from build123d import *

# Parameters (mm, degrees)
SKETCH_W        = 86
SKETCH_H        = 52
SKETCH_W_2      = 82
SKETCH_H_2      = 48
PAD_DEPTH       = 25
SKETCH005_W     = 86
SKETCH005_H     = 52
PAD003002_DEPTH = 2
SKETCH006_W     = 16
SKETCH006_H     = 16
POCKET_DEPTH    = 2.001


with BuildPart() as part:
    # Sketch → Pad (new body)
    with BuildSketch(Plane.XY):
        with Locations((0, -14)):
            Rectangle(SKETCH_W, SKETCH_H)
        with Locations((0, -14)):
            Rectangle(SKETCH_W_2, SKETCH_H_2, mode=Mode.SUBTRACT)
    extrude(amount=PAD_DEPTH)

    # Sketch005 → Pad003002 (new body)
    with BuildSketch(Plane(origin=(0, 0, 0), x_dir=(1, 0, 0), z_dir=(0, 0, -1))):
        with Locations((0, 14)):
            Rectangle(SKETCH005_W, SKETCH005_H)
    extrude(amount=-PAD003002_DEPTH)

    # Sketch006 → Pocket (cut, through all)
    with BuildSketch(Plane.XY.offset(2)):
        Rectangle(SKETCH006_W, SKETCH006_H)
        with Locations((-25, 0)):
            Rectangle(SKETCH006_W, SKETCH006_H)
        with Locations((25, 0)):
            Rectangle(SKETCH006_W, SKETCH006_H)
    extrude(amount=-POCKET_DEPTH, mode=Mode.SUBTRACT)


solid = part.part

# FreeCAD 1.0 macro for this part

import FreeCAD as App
import Part
import Sketcher
from FreeCAD import Vector
Q = App.Units.Quantity


def add_polygon(sketch, points):
    """Adds a closed chain of lines whose ends are joined by coincident constraints."""
    first, n = sketch.GeometryCount, len(points)
    for a, b in zip(points, points[1:] + points[:1]):
        sketch.addGeometry(Part.LineSegment(App.Vector(*a, 0), App.Vector(*b, 0)), False)
    for i in range(n):
        sketch.addConstraint(Sketcher.Constraint("Coincident", first + i, 2, first + (i + 1) % n, 1))

doc = App.newDocument("Part")
body = doc.addObject("PartDesign::Body", "Body")

# Sketch on XY plane
sketch1 = body.newObject("Sketcher::SketchObject", "Sketch")
sketch1.AttachmentSupport = (doc.getObject("XY_Plane"), [""])
sketch1.MapMode = "FlatFace"
add_polygon(sketch1, [(-43, 12), (-43, -40), (43, -40), (43, 12)])  # lines 0-3
add_polygon(sketch1, [(41, -38), (-41, -38), (-41, 10), (41, 10)])  # lines 4-7
sketch1.addConstraint(Sketcher.Constraint("Vertical", 0))
sketch1.addConstraint(Sketcher.Constraint("Horizontal", 1))
sketch1.addConstraint(Sketcher.Constraint("Vertical", 2))
sketch1.addConstraint(Sketcher.Constraint("Horizontal", 3))
sketch1.addConstraint(Sketcher.Constraint("Horizontal", 4))
sketch1.addConstraint(Sketcher.Constraint("Vertical", 5))
sketch1.addConstraint(Sketcher.Constraint("Horizontal", 6))
sketch1.addConstraint(Sketcher.Constraint("Vertical", 7))
sketch1.addConstraint(Sketcher.Constraint("DistanceX", 1, 1, 1, 2, Q("86 mm")))
sketch1.addConstraint(Sketcher.Constraint("DistanceX", 4, 2, 4, 1, Q("82 mm")))
sketch1.addConstraint(Sketcher.Constraint("DistanceY", 0, 2, 0, 1, Q("52 mm")))
sketch1.addConstraint(Sketcher.Constraint("DistanceY", 5, 1, 5, 2, Q("48 mm")))
sketch1.addConstraint(Sketcher.Constraint("DistanceX", 0, 2, -1, 1, Q("43 mm")))
sketch1.addConstraint(Sketcher.Constraint("DistanceY", 0, 2, -1, 1, Q("40 mm")))
sketch1.addConstraint(Sketcher.Constraint("DistanceX", 4, 2, -1, 1, Q("41 mm")))
sketch1.addConstraint(Sketcher.Constraint("DistanceY", 4, 2, -1, 1, Q("38 mm")))
pad1 = body.newObject("PartDesign::Pad", "Pad")
pad1.Profile = sketch1
pad1.Length = 25

# Sketch on XY plane
sketch2 = body.newObject("Sketcher::SketchObject", "Sketch001")
sketch2.AttachmentSupport = (doc.getObject("XY_Plane"), [""])
sketch2.MapMode = "FlatFace"
add_polygon(sketch2, [(-43, -40), (-43, 12), (43, 12), (43, -40)])  # lines 0-3
sketch2.addConstraint(Sketcher.Constraint("Vertical", 0))
sketch2.addConstraint(Sketcher.Constraint("Horizontal", 1))
sketch2.addConstraint(Sketcher.Constraint("Vertical", 2))
sketch2.addConstraint(Sketcher.Constraint("Horizontal", 3))
sketch2.addConstraint(Sketcher.Constraint("DistanceX", 1, 1, 1, 2, Q("86 mm")))
sketch2.addConstraint(Sketcher.Constraint("DistanceY", 0, 1, 0, 2, Q("52 mm")))
sketch2.addConstraint(Sketcher.Constraint("DistanceX", 0, 2, -1, 1, Q("43 mm")))
sketch2.addConstraint(Sketcher.Constraint("DistanceY", -1, 1, 0, 2, Q("12 mm")))
pad2 = body.newObject("PartDesign::Pad", "Pad001")
pad2.Profile = sketch2
pad2.Length = 2

# Sketch on XY plane
sketch3 = body.newObject("Sketcher::SketchObject", "Sketch002")
sketch3.AttachmentSupport = (doc.getObject("XY_Plane"), [""])
sketch3.MapMode = "FlatFace"
sketch3.AttachmentOffset = App.Placement(Vector(0, 0, 2), App.Rotation())
add_polygon(sketch3, [(-8, 8), (-8, -8), (8, -8), (8, 8)])  # lines 0-3
add_polygon(sketch3, [(-33, 8), (-33, -8), (-17, -8), (-17, 8)])  # lines 4-7
add_polygon(sketch3, [(17, 8), (17, -8), (33, -8), (33, 8)])  # lines 8-11
sketch3.addConstraint(Sketcher.Constraint("Vertical", 0))
sketch3.addConstraint(Sketcher.Constraint("Horizontal", 1))
sketch3.addConstraint(Sketcher.Constraint("Vertical", 2))
sketch3.addConstraint(Sketcher.Constraint("Horizontal", 3))
sketch3.addConstraint(Sketcher.Constraint("Vertical", 4))
sketch3.addConstraint(Sketcher.Constraint("Horizontal", 5))
sketch3.addConstraint(Sketcher.Constraint("Vertical", 6))
sketch3.addConstraint(Sketcher.Constraint("Horizontal", 7))
sketch3.addConstraint(Sketcher.Constraint("Vertical", 8))
sketch3.addConstraint(Sketcher.Constraint("Horizontal", 9))
sketch3.addConstraint(Sketcher.Constraint("Vertical", 10))
sketch3.addConstraint(Sketcher.Constraint("Horizontal", 11))
sketch3.addConstraint(Sketcher.Constraint("Symmetric", 0, 2, 2, 2, -1, 1))
sketch3.addConstraint(Sketcher.Constraint("Symmetric", 6, 2, 8, 2, -1, 1))
sketch3.addConstraint(Sketcher.Constraint("Symmetric", 4, 2, 10, 2, -1, 1))
sketch3.addConstraint(Sketcher.Constraint("Horizontal", 1, 2, 4, 2))
sketch3.addConstraint(Sketcher.Constraint("Horizontal", 3, 2, 6, 2))
sketch3.addConstraint(Sketcher.Constraint("Equal", 3, 5))
sketch3.addConstraint(Sketcher.Constraint("Equal", 11, 0))
sketch3.addConstraint(Sketcher.Constraint("DistanceX", 1, 1, 1, 2, Q("16 mm")))
sketch3.addConstraint(Sketcher.Constraint("DistanceX", 4, 2, -1, 1, Q("33 mm")))
pocket1 = body.newObject("PartDesign::Pocket", "Pocket")
pocket1.Profile = sketch3
pocket1.Type = "ThroughAll"

doc.recompute()
